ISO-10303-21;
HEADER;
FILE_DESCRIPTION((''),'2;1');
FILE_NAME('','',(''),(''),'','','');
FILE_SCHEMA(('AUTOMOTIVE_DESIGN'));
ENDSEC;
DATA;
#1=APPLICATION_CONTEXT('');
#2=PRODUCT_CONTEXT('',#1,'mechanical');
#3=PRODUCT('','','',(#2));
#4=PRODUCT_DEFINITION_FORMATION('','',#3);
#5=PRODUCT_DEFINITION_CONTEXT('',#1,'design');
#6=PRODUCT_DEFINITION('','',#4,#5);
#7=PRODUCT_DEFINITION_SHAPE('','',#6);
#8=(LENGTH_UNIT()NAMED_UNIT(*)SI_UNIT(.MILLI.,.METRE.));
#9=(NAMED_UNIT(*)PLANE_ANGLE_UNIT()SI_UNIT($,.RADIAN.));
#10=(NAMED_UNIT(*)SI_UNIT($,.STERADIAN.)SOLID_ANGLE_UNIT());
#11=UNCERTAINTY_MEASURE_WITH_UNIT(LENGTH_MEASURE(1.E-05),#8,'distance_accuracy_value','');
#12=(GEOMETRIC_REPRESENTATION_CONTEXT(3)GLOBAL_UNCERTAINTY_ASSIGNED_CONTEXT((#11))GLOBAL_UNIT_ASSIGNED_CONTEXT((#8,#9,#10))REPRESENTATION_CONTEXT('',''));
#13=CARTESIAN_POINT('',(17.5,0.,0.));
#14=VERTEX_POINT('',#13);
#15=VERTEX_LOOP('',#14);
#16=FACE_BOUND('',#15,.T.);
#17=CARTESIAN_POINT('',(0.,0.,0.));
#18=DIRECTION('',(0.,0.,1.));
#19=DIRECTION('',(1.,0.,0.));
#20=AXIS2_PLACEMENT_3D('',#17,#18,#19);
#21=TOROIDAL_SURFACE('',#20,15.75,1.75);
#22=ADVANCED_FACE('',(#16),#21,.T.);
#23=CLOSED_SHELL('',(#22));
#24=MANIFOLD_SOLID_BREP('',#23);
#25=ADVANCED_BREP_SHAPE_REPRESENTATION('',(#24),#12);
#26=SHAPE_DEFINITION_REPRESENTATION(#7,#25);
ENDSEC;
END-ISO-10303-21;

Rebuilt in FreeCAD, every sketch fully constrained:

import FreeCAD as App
import Part
import Sketcher

V = App.Vector
Q = App.Units.Quantity

doc = App.newDocument("Part")
body = doc.addObject("PartDesign::Body", "Body")

sketch1 = body.newObject("Sketcher::SketchObject", "Sketch")
sketch1.AttachmentSupport = (doc.getObject("YZ_Plane"), [""])
sketch1.MapMode = "FlatFace"
sketch1.addGeometry(Part.Circle(V(-15.8, 0, 0), V(0, 0, 1), 1.8), False)
sketch1.addConstraint(Sketcher.Constraint("PointOnObject", 0, 3, -1))
sketch1.addConstraint(Sketcher.Constraint("Diameter", 0, Q("3.5 mm")))
sketch1.addConstraint(Sketcher.Constraint("DistanceX", 0, 3, -1, 1, Q("15.75 mm")))
revolution = body.newObject("PartDesign::Revolution", "Revolution")
revolution.Profile = sketch1
revolution.ReferenceAxis = (sketch1, ["V_Axis"])
revolution.Angle = 360

doc.recompute()
